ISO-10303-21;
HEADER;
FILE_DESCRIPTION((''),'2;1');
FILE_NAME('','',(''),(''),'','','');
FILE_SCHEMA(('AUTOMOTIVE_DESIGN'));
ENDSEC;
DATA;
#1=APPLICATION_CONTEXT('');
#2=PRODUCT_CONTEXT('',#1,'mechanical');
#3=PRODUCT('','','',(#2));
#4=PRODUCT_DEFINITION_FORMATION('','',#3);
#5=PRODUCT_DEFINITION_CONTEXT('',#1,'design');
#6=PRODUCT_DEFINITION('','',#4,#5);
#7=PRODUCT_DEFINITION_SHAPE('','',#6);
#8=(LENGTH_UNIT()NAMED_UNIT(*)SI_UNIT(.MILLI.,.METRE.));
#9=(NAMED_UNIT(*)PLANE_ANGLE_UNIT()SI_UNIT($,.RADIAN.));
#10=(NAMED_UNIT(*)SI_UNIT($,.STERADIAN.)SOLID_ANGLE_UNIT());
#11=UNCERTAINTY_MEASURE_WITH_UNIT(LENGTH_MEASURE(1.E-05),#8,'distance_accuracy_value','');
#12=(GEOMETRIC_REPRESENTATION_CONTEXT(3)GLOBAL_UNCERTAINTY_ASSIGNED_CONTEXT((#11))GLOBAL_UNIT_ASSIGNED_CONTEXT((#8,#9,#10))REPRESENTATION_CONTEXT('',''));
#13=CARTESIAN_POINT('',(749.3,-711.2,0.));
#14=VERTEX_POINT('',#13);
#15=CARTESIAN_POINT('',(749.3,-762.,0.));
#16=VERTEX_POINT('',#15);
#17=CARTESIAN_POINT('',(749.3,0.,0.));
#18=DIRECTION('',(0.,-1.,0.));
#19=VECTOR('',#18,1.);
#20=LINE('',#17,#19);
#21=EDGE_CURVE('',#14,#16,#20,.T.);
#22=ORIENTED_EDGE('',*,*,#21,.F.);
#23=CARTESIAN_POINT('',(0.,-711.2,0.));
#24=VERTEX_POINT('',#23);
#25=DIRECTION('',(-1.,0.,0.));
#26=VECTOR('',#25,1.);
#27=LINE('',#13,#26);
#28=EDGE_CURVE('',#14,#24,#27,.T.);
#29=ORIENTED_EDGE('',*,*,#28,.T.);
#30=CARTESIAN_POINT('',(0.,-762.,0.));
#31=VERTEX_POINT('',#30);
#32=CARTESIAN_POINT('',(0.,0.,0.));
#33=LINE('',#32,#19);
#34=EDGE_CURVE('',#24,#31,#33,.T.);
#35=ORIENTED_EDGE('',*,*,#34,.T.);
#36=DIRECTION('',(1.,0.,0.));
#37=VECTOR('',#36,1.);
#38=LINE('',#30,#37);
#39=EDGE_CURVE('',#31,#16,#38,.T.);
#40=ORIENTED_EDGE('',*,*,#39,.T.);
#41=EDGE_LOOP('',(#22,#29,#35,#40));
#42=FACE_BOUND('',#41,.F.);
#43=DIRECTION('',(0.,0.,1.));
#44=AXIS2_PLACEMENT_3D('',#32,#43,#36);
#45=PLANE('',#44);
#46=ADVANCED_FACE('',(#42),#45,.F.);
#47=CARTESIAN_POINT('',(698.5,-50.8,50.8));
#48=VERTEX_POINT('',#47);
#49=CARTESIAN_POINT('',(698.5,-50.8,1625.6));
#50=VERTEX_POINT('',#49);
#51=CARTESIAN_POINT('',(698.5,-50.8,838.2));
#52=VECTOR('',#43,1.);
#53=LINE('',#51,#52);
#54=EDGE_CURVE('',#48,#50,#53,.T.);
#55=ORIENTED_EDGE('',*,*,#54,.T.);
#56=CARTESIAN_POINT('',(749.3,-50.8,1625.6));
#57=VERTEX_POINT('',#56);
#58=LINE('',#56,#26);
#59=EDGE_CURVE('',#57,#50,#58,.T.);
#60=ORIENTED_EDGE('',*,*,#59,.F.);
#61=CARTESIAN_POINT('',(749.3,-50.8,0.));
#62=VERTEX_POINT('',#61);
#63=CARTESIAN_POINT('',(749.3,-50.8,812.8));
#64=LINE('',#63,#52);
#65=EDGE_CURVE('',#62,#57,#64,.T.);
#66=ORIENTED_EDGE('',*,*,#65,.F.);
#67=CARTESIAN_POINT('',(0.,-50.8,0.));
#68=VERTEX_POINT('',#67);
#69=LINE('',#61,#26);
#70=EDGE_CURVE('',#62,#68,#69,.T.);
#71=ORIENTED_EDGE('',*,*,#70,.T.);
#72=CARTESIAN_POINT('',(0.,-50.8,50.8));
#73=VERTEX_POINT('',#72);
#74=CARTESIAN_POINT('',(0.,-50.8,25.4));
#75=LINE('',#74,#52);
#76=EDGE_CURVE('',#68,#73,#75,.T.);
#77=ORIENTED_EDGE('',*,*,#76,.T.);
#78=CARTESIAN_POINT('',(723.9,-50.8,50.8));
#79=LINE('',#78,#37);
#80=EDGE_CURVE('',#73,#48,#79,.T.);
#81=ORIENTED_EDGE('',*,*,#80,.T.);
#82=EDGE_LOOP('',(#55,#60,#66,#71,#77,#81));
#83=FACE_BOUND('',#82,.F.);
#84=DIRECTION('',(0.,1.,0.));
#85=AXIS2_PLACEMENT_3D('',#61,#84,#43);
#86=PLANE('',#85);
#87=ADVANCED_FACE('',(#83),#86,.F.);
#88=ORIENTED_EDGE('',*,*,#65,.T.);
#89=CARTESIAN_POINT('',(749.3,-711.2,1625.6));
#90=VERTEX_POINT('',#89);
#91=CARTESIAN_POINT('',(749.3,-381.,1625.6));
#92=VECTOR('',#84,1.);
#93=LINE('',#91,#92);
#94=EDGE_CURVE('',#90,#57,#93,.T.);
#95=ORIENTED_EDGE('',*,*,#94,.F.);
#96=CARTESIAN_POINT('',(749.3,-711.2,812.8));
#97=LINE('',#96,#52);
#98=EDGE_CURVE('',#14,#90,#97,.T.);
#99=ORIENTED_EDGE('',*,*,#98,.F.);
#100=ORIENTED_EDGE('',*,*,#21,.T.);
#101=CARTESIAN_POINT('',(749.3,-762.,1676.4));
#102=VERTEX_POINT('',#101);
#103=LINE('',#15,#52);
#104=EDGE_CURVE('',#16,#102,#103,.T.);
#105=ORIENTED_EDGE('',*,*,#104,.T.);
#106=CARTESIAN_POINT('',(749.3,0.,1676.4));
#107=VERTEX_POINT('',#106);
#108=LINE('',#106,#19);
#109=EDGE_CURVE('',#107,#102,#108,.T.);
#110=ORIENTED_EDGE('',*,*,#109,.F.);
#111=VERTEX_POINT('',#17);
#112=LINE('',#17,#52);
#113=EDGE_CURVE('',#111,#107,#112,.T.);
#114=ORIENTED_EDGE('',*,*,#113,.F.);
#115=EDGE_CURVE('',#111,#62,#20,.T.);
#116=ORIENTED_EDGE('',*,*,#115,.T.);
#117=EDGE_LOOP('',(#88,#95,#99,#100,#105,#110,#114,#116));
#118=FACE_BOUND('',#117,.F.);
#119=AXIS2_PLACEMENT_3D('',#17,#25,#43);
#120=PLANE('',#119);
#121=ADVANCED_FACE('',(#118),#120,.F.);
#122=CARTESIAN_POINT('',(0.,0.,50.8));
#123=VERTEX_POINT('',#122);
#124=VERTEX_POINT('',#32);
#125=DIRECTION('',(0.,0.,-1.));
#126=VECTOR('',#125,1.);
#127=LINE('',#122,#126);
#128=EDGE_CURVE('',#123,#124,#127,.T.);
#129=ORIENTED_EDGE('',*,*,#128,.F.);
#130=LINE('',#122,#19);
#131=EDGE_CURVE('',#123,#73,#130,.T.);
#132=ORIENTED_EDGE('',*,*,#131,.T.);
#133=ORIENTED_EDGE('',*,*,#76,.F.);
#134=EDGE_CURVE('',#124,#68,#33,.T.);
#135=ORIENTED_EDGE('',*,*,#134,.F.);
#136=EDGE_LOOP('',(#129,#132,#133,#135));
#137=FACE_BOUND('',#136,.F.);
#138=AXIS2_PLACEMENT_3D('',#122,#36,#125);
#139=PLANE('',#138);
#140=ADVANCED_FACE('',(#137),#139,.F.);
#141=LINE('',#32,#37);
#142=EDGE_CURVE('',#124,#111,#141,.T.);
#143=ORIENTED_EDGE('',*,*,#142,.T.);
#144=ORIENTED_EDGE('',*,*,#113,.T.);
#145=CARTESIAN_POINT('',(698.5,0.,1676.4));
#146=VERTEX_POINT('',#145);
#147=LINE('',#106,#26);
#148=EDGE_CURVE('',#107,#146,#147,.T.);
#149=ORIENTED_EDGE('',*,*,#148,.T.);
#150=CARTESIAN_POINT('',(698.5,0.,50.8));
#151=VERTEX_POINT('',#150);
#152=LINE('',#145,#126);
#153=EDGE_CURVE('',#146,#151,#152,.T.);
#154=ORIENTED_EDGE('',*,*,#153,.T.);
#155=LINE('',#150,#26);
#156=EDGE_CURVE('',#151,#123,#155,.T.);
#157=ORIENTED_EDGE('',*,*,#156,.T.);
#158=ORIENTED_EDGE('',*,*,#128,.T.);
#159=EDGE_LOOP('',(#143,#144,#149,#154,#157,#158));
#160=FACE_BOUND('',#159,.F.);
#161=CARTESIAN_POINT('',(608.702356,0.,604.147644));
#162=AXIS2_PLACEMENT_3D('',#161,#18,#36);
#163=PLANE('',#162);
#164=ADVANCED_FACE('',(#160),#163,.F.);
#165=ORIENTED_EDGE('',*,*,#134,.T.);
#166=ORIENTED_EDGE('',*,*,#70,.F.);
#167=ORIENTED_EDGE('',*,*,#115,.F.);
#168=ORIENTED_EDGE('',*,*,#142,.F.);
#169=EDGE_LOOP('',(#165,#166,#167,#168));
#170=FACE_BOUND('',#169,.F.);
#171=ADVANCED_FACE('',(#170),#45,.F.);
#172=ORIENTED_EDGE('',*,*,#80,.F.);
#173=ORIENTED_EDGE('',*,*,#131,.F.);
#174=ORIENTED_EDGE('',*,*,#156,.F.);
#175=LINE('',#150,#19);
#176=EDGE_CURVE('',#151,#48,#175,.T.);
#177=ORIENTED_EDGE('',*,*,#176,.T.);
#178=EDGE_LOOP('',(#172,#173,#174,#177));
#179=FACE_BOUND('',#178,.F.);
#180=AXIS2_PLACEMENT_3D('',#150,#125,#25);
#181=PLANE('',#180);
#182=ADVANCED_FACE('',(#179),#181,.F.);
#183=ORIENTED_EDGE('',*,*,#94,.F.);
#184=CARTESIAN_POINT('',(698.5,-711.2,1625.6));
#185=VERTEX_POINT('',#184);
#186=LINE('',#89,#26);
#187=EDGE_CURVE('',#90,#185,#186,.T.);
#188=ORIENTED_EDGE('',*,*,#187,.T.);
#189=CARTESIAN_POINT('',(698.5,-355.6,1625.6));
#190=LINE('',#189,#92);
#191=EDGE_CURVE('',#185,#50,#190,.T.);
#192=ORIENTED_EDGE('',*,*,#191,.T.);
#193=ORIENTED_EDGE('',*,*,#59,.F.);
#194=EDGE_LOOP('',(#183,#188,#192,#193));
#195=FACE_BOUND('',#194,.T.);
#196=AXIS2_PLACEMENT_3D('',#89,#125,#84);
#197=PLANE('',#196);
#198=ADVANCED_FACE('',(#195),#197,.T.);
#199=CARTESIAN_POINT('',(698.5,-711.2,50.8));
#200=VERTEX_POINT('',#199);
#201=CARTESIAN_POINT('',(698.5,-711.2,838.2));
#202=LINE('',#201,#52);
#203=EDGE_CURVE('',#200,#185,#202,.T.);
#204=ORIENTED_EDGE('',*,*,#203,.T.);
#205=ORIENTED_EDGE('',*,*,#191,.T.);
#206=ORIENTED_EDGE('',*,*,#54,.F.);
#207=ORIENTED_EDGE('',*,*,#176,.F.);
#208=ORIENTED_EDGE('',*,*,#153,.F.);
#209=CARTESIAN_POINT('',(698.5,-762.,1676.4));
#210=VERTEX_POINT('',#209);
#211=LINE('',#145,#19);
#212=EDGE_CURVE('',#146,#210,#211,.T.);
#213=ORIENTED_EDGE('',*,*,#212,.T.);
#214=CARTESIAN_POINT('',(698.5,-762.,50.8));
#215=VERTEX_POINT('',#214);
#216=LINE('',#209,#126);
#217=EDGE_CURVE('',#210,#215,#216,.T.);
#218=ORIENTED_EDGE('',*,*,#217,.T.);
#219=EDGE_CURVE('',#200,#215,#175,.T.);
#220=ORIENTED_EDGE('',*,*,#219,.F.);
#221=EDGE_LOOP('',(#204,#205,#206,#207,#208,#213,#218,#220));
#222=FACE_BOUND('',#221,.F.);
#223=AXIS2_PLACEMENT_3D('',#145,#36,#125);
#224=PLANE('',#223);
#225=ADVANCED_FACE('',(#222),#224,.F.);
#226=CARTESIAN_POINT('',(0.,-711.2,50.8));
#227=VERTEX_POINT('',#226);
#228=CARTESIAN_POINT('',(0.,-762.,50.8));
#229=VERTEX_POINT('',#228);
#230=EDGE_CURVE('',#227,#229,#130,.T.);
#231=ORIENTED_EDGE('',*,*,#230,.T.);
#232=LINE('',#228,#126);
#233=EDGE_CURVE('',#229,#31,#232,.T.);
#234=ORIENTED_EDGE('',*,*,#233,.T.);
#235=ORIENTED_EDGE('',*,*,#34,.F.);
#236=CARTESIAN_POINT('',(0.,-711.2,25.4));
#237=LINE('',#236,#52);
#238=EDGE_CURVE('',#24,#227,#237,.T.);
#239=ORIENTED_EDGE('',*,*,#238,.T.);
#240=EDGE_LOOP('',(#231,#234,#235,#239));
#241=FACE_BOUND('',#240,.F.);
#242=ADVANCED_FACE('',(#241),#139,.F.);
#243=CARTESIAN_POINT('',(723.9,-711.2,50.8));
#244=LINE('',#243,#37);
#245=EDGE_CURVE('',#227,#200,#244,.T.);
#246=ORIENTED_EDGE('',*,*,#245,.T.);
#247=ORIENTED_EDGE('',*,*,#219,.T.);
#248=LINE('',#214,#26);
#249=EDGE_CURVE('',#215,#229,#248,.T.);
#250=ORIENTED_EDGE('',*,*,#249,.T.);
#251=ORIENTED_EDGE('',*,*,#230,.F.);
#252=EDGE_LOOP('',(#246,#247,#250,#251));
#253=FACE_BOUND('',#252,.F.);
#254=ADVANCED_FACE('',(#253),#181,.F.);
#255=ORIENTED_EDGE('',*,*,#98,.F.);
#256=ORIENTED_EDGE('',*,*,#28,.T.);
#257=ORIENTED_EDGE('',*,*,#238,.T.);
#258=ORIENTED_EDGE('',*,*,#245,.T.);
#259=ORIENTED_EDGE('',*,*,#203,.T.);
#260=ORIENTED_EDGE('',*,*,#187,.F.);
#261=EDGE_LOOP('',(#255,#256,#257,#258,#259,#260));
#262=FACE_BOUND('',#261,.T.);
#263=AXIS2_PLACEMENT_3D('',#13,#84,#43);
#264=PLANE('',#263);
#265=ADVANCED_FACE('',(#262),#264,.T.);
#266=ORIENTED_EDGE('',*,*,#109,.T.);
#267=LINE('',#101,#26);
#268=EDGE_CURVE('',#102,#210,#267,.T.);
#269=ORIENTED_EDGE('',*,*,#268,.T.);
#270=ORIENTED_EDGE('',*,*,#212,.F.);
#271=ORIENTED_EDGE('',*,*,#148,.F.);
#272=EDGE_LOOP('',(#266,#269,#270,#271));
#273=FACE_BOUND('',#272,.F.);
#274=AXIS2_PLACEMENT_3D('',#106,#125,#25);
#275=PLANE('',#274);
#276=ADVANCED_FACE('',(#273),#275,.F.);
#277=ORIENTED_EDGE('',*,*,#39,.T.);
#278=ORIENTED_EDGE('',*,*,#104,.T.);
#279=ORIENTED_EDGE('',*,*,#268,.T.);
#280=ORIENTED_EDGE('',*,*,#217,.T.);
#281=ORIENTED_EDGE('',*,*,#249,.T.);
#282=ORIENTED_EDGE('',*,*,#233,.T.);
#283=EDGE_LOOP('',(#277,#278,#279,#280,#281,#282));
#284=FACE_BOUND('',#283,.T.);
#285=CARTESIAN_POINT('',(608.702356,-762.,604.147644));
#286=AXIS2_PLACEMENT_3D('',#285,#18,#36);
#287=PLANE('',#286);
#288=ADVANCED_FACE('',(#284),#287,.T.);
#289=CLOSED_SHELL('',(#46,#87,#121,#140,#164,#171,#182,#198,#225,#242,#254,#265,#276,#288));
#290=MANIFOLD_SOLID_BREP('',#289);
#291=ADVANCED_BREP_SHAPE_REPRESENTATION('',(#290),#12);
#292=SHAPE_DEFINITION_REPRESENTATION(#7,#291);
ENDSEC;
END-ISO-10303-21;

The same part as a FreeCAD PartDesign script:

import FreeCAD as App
import Part
import Sketcher

V = App.Vector
Q = App.Units.Quantity


def add_polygon(sketch, points):
    """Adds a closed chain of lines whose ends are joined by coincident constraints."""
    first, n = sketch.GeometryCount, len(points)
    for a, b in zip(points, points[1:] + points[:1]):
        sketch.addGeometry(Part.LineSegment(App.Vector(*a, 0), App.Vector(*b, 0)), False)
    for i in range(n):
        sketch.addConstraint(Sketcher.Constraint("Coincident", first + i, 2, first + (i + 1) % n, 1))

doc = App.newDocument("Part")
body = doc.addObject("PartDesign::Body", "Body")

# Sketch on XZ plane
sketch1 = doc.addObject("Sketcher::SketchObject", "Sketch")
body.addObject(sketch1)
sketch1.AttachmentSupport = (doc.XZ_Plane, [""])
sketch1.MapMode = "FlatFace"
add_polygon(sketch1, [(0, 51), (0, 0), (749, 0), (749, 1676), (698, 1676), (698, 51)])  # lines 0-5
sketch1.addConstraint([
    Sketcher.Constraint("Vertical", 0),
    Sketcher.Constraint("Horizontal", 1),
    Sketcher.Constraint("Vertical", 2),
    Sketcher.Constraint("Horizontal", 3),
    Sketcher.Constraint("Vertical", 4),
    Sketcher.Constraint("Horizontal", 5),
    Sketcher.Constraint("Coincident", 0, 2, -1, 1),
    Sketcher.Constraint("Equal", 3, 0),
    Sketcher.Constraint("DistanceX", 3, 2, 3, 1, Q("2 in")),
    Sketcher.Constraint("DistanceY", 2, 1, 2, 2, Q("66 in")),
    Sketcher.Constraint("DistanceX", 1, 1, 1, 2, Q("29.5 in")),
])
pad1 = doc.addObject("PartDesign::Pad", "Pad")
body.addObject(pad1)
pad1.Profile = sketch1
pad1.Length = Q("30 in")

# Sketch on YZ plane
sketch2 = doc.addObject("Sketcher::SketchObject", "Sketch001")
body.addObject(sketch2)
sketch2.AttachmentSupport = (doc.YZ_Plane, [""])
sketch2.MapMode = "FlatFace"
sketch2.AttachmentOffset = App.Placement(V(0, 0, 29.5 * 25.4), App.Rotation())
add_polygon(sketch2, [(-711, 1626), (-711, 0), (-51, 0), (-51, 1626)])  # lines 0-3
sketch2.addConstraint([
    Sketcher.Constraint("Vertical", 0),
    Sketcher.Constraint("Horizontal", 1),
    Sketcher.Constraint("Vertical", 2),
    Sketcher.Constraint("Horizontal", 3),
    Sketcher.Constraint("PointOnObject", 0, 2, -1),
    Sketcher.Constraint("DistanceX", 1, 1, 1, 2, Q("26 in")),
    Sketcher.Constraint("DistanceY", 0, 2, 0, 1, Q("64 in")),
    Sketcher.Constraint("DistanceX", 0, 2, -1, 1, Q("28 in")),
])
pocket1 = doc.addObject("PartDesign::Pocket", "Pocket")
body.addObject(pocket1)
pocket1.Profile = sketch2
pocket1.Type = "ThroughAll"

doc.recompute()
